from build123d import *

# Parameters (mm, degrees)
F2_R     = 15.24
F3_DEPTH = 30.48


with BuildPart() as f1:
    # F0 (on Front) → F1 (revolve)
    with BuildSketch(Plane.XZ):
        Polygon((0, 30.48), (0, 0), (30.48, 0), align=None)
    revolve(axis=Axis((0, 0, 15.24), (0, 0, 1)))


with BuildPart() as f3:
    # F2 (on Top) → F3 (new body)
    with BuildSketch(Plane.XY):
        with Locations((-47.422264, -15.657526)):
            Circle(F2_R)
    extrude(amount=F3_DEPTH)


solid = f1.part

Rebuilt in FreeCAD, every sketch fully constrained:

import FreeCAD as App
import Part
import Sketcher
from FreeCAD import Vector
Q = App.Units.Quantity


def add_polygon(sketch, points):
    """Adds a closed chain of lines whose ends are joined by coincident constraints."""
    first, n = sketch.GeometryCount, len(points)
    for a, b in zip(points, points[1:] + points[:1]):
        sketch.addGeometry(Part.LineSegment(App.Vector(*a, 0), App.Vector(*b, 0)), False)
    for i in range(n):
        sketch.addConstraint(Sketcher.Constraint("Coincident", first + i, 2, first + (i + 1) % n, 1))

doc = App.newDocument("Part")
params = doc.addObject("Spreadsheet::Sheet", "Params")
for row, (alias, value) in enumerate([
    ("sketch1_width", "1.2 in"),
    ("revolution_angle", "360 deg"),
    ("sketch2_diameter", "1.2 in"),
    ("pad1_length", "1.2 in"),
], start=1):
    params.set(f"A{row}", alias)
    params.set(f"B{row}", "=" + value)
    params.setAlias(f"B{row}", alias)

body = doc.addObject("PartDesign::Body", "Body")

# Sketch on XZ plane
sketch1 = doc.addObject("Sketcher::SketchObject", "Sketch")
body.addObject(sketch1)
sketch1.AttachmentSupport = (doc.XZ_Plane, [""])
sketch1.MapMode = "FlatFace"
add_polygon(sketch1, [(0, 30.48), (0, 0), (30.48, 0)])  # lines 0-2
sketch1.addConstraint([
    Sketcher.Constraint("Vertical", 0),
    Sketcher.Constraint("Horizontal", 1),
    Sketcher.Constraint("Coincident", 0, 2, -1, 1),
    Sketcher.Constraint("Equal", 1, 0),
    Sketcher.Constraint("DistanceX", 1, 1, 1, 2, Q("1.2 in")),
])
sketch1.setExpression("Constraints[7]", "Params.sketch1_width")
revolution = doc.addObject("PartDesign::Revolution", "Revolution")
body.addObject(revolution)
revolution.Profile = sketch1
revolution.ReferenceAxis = (sketch1, ["V_Axis"])
revolution.setExpression("Angle", "Params.revolution_angle")
body2 = doc.addObject("PartDesign::Body", "Body001")

# Sketch on XY plane
sketch2 = doc.addObject("Sketcher::SketchObject", "Sketch001")
body2.addObject(sketch2)
sketch2.AttachmentSupport = (doc.getObject("XY_Plane001"), [""])
sketch2.MapMode = "FlatFace"
sketch2.addGeometry(Part.Circle(Vector(-47.422264, -15.657526, 0), Vector(0, 0, 1), 15.24), False)
sketch2.addConstraint([
    Sketcher.Constraint("Diameter", 0, Q("1.2 in")),
    Sketcher.Constraint("DistanceX", 0, 3, -1, 1, Q("47.422264 mm")),
    Sketcher.Constraint("DistanceY", 0, 3, -1, 1, Q("15.657526 mm")),
])
sketch2.setExpression("Constraints[0]", "Params.sketch2_diameter")
pad1 = doc.addObject("PartDesign::Pad", "Pad")
body2.addObject(pad1)
pad1.Profile = sketch2
pad1.setExpression("Length", "Params.pad1_length")
body2.Visibility = False

doc.recompute()
